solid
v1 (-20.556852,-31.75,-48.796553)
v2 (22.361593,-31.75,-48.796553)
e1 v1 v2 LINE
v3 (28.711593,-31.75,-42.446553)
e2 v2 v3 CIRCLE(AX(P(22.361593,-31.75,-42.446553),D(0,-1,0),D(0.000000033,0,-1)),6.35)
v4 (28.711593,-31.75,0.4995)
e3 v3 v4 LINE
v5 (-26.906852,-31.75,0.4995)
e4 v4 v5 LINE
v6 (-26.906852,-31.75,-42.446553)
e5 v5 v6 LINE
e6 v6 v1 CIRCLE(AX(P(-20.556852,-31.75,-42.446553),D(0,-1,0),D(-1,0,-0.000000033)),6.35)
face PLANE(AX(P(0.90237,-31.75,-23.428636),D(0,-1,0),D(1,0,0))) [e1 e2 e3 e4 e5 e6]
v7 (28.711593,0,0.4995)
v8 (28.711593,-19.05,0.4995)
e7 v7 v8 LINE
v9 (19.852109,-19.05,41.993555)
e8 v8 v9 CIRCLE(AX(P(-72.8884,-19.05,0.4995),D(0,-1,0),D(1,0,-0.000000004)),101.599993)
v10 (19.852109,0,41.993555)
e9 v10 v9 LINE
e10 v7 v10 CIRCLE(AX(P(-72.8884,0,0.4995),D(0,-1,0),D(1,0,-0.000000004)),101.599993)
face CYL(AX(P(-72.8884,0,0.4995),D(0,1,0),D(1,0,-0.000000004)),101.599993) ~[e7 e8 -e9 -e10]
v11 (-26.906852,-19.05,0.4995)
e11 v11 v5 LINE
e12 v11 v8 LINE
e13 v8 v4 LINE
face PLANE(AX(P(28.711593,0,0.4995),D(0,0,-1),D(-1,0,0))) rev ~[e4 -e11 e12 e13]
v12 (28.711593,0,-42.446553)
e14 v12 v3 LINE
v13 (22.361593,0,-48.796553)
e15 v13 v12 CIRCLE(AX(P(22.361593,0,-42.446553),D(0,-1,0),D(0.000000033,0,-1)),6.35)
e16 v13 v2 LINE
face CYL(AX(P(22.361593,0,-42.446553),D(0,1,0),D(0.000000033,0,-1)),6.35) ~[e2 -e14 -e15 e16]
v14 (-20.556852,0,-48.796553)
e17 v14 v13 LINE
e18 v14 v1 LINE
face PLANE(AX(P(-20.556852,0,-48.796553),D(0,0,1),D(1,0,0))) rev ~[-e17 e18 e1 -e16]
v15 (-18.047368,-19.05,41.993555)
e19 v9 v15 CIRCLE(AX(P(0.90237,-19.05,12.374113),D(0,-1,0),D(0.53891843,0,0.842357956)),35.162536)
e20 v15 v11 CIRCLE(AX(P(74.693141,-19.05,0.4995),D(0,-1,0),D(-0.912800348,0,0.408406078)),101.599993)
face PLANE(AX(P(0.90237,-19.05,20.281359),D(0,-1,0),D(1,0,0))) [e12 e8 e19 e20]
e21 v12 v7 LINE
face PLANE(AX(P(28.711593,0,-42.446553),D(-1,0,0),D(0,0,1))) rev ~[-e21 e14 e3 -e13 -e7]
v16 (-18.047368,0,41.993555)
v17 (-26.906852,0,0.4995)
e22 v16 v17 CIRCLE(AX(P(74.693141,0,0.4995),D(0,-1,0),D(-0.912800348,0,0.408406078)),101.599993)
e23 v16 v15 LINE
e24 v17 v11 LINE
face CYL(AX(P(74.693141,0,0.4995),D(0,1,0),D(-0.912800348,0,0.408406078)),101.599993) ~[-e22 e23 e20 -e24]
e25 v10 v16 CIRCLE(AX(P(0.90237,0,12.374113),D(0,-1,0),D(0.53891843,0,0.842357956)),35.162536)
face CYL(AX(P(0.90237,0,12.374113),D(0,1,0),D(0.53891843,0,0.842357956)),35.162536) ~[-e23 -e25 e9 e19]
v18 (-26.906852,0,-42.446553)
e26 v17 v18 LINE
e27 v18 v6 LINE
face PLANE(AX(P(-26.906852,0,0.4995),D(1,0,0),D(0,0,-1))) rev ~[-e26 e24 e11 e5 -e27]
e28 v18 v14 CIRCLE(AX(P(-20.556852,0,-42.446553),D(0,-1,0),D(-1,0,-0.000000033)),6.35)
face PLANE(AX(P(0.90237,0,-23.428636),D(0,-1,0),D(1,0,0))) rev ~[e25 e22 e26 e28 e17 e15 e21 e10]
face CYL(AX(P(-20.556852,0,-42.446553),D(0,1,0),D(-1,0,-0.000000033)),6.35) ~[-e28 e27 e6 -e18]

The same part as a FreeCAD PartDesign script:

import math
import FreeCAD as App
import Part
import Sketcher
Q = App.Units.Quantity

doc = App.newDocument("Part")
body = doc.addObject("PartDesign::Body", "Body")

sketch1 = doc.addObject("Sketcher::SketchObject", "Sketch")
body.addObject(sketch1)
sketch1.AttachmentSupport = (doc.XZ_Plane, [""])
sketch1.MapMode = "FlatFace"
sketch1.addGeometry(Part.ArcOfCircle(Part.Circle(App.Vector(74.693141, 0.4995, 0), App.Vector(0, 0, 1), 101.599993), math.radians(155.895254), math.radians(180)), False)
sketch1.addGeometry(Part.LineSegment(App.Vector(-26.906852, 0.4995, 0), App.Vector(28.711593, 0.4995, 0)), False)
sketch1.addGeometry(Part.ArcOfCircle(Part.Circle(App.Vector(-72.8884, 0.4995, 0), App.Vector(0, 0, 1), 101.599993), math.radians(0), math.radians(24.104746)), False)
sketch1.addGeometry(Part.ArcOfCircle(Part.Circle(App.Vector(0.90237, 12.374113, 0), App.Vector(0, 0, 1), 35.162536), math.radians(57.389958), math.radians(122.610042)), False)
sketch1.addConstraint(Sketcher.Constraint("Coincident", 0, 2, 1, 1))
sketch1.addConstraint(Sketcher.Constraint("Coincident", 1, 2, 2, 1))
sketch1.addConstraint(Sketcher.Constraint("Coincident", 2, 2, 3, 1))
sketch1.addConstraint(Sketcher.Constraint("Coincident", 3, 2, 0, 1))
sketch1.addConstraint(Sketcher.Constraint("Horizontal", 1))
sketch1.addConstraint(Sketcher.Constraint("Equal", 0, 2))
sketch1.addConstraint(Sketcher.Constraint("Horizontal", 0, 3, 2, 3))
sketch1.addConstraint(Sketcher.Constraint("Horizontal", 2, 3, 0, 2))
sketch1.addConstraint(Sketcher.Constraint("Horizontal", 2, 2, 3, 2))
sketch1.addConstraint(Sketcher.Constraint("Radius", 0, 101.599993))
sketch1.addConstraint(Sketcher.Constraint("Radius", 3, 35.162536))
sketch1.addConstraint(Sketcher.Constraint("DistanceY", -1, 1, 0, 3, 0.4995))
sketch1.addConstraint(Sketcher.Constraint("DistanceX", 2, 3, -1, 1, 72.8884))
sketch1.addConstraint(Sketcher.Constraint("DistanceX", 1, 1, 1, 2, 55.618445))
sketch1.addConstraint(Sketcher.Constraint("DistanceX", -1, 1, 2, 2, 19.852109))
pad1 = doc.addObject("PartDesign::Pad", "Pad")
body.addObject(pad1)
pad1.Profile = sketch1
pad1.Length = Q("0.75 in")

sketch2 = doc.addObject("Sketcher::SketchObject", "Sketch001")
body.addObject(sketch2)
sketch2.AttachmentSupport = (doc.XZ_Plane, [""])
sketch2.MapMode = "FlatFace"
sketch2.addGeometry(Part.ArcOfCircle(Part.Circle(App.Vector(-20.556852, -42.446553, 0), App.Vector(0, 0, 1), 6.35), math.radians(-179.999998), math.radians(-90.000002)), False)
sketch2.addGeometry(Part.LineSegment(App.Vector(-20.556852, -48.796553, 0), App.Vector(22.361593, -48.796553, 0)), False)
sketch2.addGeometry(Part.ArcOfCircle(Part.Circle(App.Vector(22.361593, -42.446553, 0), App.Vector(0, 0, 1), 6.35), math.radians(-89.999998), math.radians(-0.000002)), False)
sketch2.addGeometry(Part.LineSegment(App.Vector(28.711593, -42.446553, 0), App.Vector(28.711593, 0.4995, 0)), False)
sketch2.addGeometry(Part.LineSegment(App.Vector(28.711593, 0.4995, 0), App.Vector(-26.906852, 0.4995, 0)), False)
sketch2.addGeometry(Part.LineSegment(App.Vector(-26.906852, 0.4995, 0), App.Vector(-26.906852, -42.446553, 0)), False)
sketch2.addConstraint(Sketcher.Constraint("Tangent", 0, 2, 1, 1))
sketch2.addConstraint(Sketcher.Constraint("Tangent", 1, 2, 2, 1))
sketch2.addConstraint(Sketcher.Constraint("Tangent", 2, 2, 3, 1))
sketch2.addConstraint(Sketcher.Constraint("Coincident", 3, 2, 4, 1))
sketch2.addConstraint(Sketcher.Constraint("Coincident", 4, 2, 5, 1))
sketch2.addConstraint(Sketcher.Constraint("Tangent", 5, 2, 0, 1))
sketch2.addConstraint(Sketcher.Constraint("Horizontal", 1))
sketch2.addConstraint(Sketcher.Constraint("Vertical", 3))
sketch2.addConstraint(Sketcher.Constraint("Horizontal", 4))
sketch2.addConstraint(Sketcher.Constraint("Vertical", 5))
sketch2.addConstraint(Sketcher.Constraint("Equal", 0, 2))
sketch2.addConstraint(Sketcher.Constraint("Radius", 0, Q("0.25 in")))
sketch2.addConstraint(Sketcher.Constraint("DistanceY", -1, 1, 3, 2, 0.4995))
sketch2.addConstraint(Sketcher.Constraint("DistanceX", 1, 1, 1, 2, 42.918445))
sketch2.addConstraint(Sketcher.Constraint("DistanceY", 3, 1, 3, 2, 42.946053))
sketch2.addConstraint(Sketcher.Constraint("DistanceX", 0, 3, -1, 1, 20.556852))
pad2 = doc.addObject("PartDesign::Pad", "Pad001")
body.addObject(pad2)
pad2.Profile = sketch2
pad2.Length = Q("1.25 in")

doc.recompute()
